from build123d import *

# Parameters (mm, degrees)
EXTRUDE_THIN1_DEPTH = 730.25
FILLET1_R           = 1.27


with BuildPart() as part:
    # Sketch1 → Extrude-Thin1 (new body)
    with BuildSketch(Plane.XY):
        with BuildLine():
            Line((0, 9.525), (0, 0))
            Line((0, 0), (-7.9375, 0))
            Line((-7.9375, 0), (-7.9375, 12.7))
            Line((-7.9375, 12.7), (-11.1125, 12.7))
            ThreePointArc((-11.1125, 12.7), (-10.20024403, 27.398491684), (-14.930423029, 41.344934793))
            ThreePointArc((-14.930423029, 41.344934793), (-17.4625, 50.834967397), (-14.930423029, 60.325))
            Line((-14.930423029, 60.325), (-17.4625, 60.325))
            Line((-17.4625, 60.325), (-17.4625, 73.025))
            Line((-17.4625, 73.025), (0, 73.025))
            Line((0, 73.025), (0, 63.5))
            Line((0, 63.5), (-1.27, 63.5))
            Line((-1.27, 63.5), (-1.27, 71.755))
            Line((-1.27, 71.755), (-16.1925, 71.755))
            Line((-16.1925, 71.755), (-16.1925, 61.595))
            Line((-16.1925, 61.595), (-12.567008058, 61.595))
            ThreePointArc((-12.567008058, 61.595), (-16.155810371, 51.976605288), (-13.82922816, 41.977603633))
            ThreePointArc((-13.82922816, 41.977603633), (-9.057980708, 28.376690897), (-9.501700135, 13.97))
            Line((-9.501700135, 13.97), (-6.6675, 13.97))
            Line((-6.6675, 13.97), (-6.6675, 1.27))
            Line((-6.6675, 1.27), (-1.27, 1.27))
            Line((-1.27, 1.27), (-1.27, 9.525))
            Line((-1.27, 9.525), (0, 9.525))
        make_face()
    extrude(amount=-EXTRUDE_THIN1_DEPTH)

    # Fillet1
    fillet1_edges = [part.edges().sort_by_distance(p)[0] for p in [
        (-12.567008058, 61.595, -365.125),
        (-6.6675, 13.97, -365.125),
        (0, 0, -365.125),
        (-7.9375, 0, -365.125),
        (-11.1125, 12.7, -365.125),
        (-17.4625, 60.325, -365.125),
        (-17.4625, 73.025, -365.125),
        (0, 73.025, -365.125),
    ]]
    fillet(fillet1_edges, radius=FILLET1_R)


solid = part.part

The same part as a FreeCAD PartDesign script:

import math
import FreeCAD as App
import Part
import Sketcher

V = App.Vector
Q = App.Units.Quantity


def edges_at(feature, points):
    """Names of the edges that pass closest to the given points."""
    edges = feature.Shape.Edges
    near = lambda p: min(range(len(edges)), key=lambda i: edges[i].distToShape(Part.Vertex(*p))[0])
    return sorted({f"Edge{near(p) + 1}" for p in points})

doc = App.newDocument("Part")
body = doc.addObject("PartDesign::Body", "Body")

# Sketch on XY plane
sketch1 = doc.addObject("Sketcher::SketchObject", "Sketch")
body.addObject(sketch1)
sketch1.AttachmentSupport = (doc.XY_Plane, [""])
sketch1.MapMode = "FlatFace"
sketch1.addGeometry([
    Part.LineSegment(V(0, 0, 0), V(0, 9.525, 0)),  # 0
    Part.LineSegment(V(0, 9.525, 0), V(-1.27, 9.525, 0)),  # 1
    Part.LineSegment(V(-1.27, 9.525, 0), V(-1.27, 1.27, 0)),  # 2
    Part.LineSegment(V(-1.27, 1.27, 0), V(-6.6675, 1.27, 0)),  # 3
    Part.LineSegment(V(-6.6675, 1.27, 0), V(-6.6675, 13.97, 0)),  # 4
    Part.LineSegment(V(-6.6675, 13.97, 0), V(-9.5017, 13.97, 0)),  # 5
    Part.ArcOfCircle(Part.Circle(V(-47.966269, 22.36487, 0), V(0, 0, 1), 39.37), math.radians(-12.311713), math.radians(29.878635)),  # 6
    Part.ArcOfCircle(Part.Circle(V(1.5875, 50.834967, 0), V(0, 0, 1), 17.78), math.radians(142.758479), math.radians(209.878635)),  # 7
    Part.LineSegment(V(-12.567008, 61.595, 0), V(-16.1925, 61.595, 0)),  # 8
    Part.LineSegment(V(-16.1925, 61.595, 0), V(-16.1925, 71.755, 0)),  # 9
    Part.LineSegment(V(-16.1925, 71.755, 0), V(-1.27, 71.755, 0)),  # 10
    Part.LineSegment(V(-1.27, 71.755, 0), V(-1.27, 63.5, 0)),  # 11
    Part.LineSegment(V(-1.27, 63.5, 0), V(0, 63.5, 0)),  # 12
    Part.LineSegment(V(0, 63.5, 0), V(0, 73.025, 0)),  # 13
    Part.LineSegment(V(0, 73.025, 0), V(-17.4625, 73.025, 0)),  # 14
    Part.LineSegment(V(-17.4625, 73.025, 0), V(-17.4625, 60.325, 0)),  # 15
    Part.LineSegment(V(-17.4625, 60.325, 0), V(-14.930423, 60.325, 0)),  # 16
    Part.ArcOfCircle(Part.Circle(V(1.5875, 50.834967, 0), V(0, 0, 1), 19.05), math.radians(150.121365), math.radians(209.878635)),  # 17
    Part.ArcOfCircle(Part.Circle(V(-47.966269, 22.36487, 0), V(0, 0, 1), 38.1), math.radians(-14.694857), math.radians(29.878635)),  # 18
    Part.LineSegment(V(-11.1125, 12.7, 0), V(-7.9375, 12.7, 0)),  # 19
    Part.LineSegment(V(-7.9375, 12.7, 0), V(-7.9375, 0, 0)),  # 20
    Part.LineSegment(V(-7.9375, 0, 0), V(0, 0, 0)),  # 21
], False)
sketch1.addConstraint([
    Sketcher.Constraint("Coincident", 0, 2, 1, 1),
    Sketcher.Constraint("Coincident", 1, 2, 2, 1),
    Sketcher.Constraint("Coincident", 2, 2, 3, 1),
    Sketcher.Constraint("Coincident", 3, 2, 4, 1),
    Sketcher.Constraint("Coincident", 4, 2, 5, 1),
    Sketcher.Constraint("Coincident", 5, 2, 6, 1),
    Sketcher.Constraint("Tangent", 6, 2, 7, 2),
    Sketcher.Constraint("Coincident", 7, 1, 8, 1),
    Sketcher.Constraint("Coincident", 8, 2, 9, 1),
    Sketcher.Constraint("Coincident", 9, 2, 10, 1),
    Sketcher.Constraint("Coincident", 10, 2, 11, 1),
    Sketcher.Constraint("Coincident", 11, 2, 12, 1),
    Sketcher.Constraint("Coincident", 12, 2, 13, 1),
    Sketcher.Constraint("Coincident", 13, 2, 14, 1),
    Sketcher.Constraint("Coincident", 14, 2, 15, 1),
    Sketcher.Constraint("Coincident", 15, 2, 16, 1),
    Sketcher.Constraint("Coincident", 16, 2, 17, 1),
    Sketcher.Constraint("Tangent", 17, 2, 18, 2),
    Sketcher.Constraint("Coincident", 18, 1, 19, 1),
    Sketcher.Constraint("Coincident", 19, 2, 20, 1),
    Sketcher.Constraint("Coincident", 20, 2, 21, 1),
    Sketcher.Constraint("Coincident", 21, 2, 0, 1),
    Sketcher.Constraint("Vertical", 0),
    Sketcher.Constraint("Horizontal", 1),
    Sketcher.Constraint("Vertical", 2),
    Sketcher.Constraint("Horizontal", 3),
    Sketcher.Constraint("Vertical", 4),
    Sketcher.Constraint("Horizontal", 5),
    Sketcher.Constraint("Horizontal", 8),
    Sketcher.Constraint("Vertical", 9),
    Sketcher.Constraint("Horizontal", 10),
    Sketcher.Constraint("Vertical", 11),
    Sketcher.Constraint("Horizontal", 12),
    Sketcher.Constraint("Vertical", 13),
    Sketcher.Constraint("Horizontal", 14),
    Sketcher.Constraint("Vertical", 15),
    Sketcher.Constraint("Horizontal", 16),
    Sketcher.Constraint("Horizontal", 19),
    Sketcher.Constraint("Vertical", 20),
    Sketcher.Constraint("Horizontal", 21),
    Sketcher.Constraint("Coincident", 21, 2, -1, 1),
    Sketcher.Constraint("Coincident", 17, 3, 7, 3),
    Sketcher.Constraint("Coincident", 18, 3, 6, 3),
    Sketcher.Constraint("PointOnObject", 12, 2, -2),
    Sketcher.Constraint("Vertical", 2, 2, 10, 2),
    Sketcher.Constraint("Vertical", 16, 2, 17, 2),
    Sketcher.Constraint("Equal", 2, 11),
    Sketcher.Constraint("Equal", 0, 13),
    Sketcher.Constraint("Equal", 4, 15),
    Sketcher.Constraint("Equal", 15, 20),
    Sketcher.Constraint("Radius", 7, Q("0.7 in")),
    Sketcher.Constraint("Radius", 18, Q("1.5 in")),
    Sketcher.Constraint("Radius", 6, Q("1.55 in")),
    Sketcher.Constraint("DistanceY", 4, 1, 4, 2, Q("0.5 in")),
    Sketcher.Constraint("DistanceY", 9, 1, 9, 2, Q("0.4 in")),
    Sketcher.Constraint("DistanceX", 1, 2, 1, 1, Q("0.05 in")),
    Sketcher.Constraint("DistanceY", -1, 1, 11, 2, Q("2.5 in")),
    Sketcher.Constraint("DistanceX", 8, 2, 7, 3, Q("0.7 in")),
    Sketcher.Constraint("DistanceX", 14, 2, 14, 1, Q("0.6875 in")),
    Sketcher.Constraint("DistanceX", 19, 1, 19, 2, Q("0.125 in")),
    Sketcher.Constraint("DistanceX", 21, 1, 21, 2, Q("0.3125 in")),
    Sketcher.Constraint("DistanceY", 0, 1, 0, 2, Q("0.375 in")),
    Sketcher.Constraint("DistanceY", 2, 2, 2, 1, Q("0.325 in")),
    Sketcher.Constraint("DistanceX", 14, 2, 9, 2, Q("0.05 in")),
    Sketcher.Constraint("DistanceX", 19, 2, 4, 2, Q("0.05 in")),
])
pad1 = doc.addObject("PartDesign::Pad", "Pad")
body.addObject(pad1)
pad1.Profile = sketch1
pad1.Length = Q("28.75 in")
pad1.Reversed = True
doc.recompute()

fillet = doc.addObject("PartDesign::Fillet", "Fillet")
body.addObject(fillet)
fillet.Base = (pad1, edges_at(pad1, [
    (-12.567, 61.595, -365.125),
    (-6.668, 13.97, -365.125),
    (0, 0, -365.125),
    (-7.938, 0, -365.125),
    (-11.113, 12.7, -365.125),
    (-17.462, 60.325, -365.125),
    (-17.462, 73.025, -365.125),
    (0, 73.025, -365.125),
]))
fillet.Radius = Q("0.05 in")

doc.recompute()
